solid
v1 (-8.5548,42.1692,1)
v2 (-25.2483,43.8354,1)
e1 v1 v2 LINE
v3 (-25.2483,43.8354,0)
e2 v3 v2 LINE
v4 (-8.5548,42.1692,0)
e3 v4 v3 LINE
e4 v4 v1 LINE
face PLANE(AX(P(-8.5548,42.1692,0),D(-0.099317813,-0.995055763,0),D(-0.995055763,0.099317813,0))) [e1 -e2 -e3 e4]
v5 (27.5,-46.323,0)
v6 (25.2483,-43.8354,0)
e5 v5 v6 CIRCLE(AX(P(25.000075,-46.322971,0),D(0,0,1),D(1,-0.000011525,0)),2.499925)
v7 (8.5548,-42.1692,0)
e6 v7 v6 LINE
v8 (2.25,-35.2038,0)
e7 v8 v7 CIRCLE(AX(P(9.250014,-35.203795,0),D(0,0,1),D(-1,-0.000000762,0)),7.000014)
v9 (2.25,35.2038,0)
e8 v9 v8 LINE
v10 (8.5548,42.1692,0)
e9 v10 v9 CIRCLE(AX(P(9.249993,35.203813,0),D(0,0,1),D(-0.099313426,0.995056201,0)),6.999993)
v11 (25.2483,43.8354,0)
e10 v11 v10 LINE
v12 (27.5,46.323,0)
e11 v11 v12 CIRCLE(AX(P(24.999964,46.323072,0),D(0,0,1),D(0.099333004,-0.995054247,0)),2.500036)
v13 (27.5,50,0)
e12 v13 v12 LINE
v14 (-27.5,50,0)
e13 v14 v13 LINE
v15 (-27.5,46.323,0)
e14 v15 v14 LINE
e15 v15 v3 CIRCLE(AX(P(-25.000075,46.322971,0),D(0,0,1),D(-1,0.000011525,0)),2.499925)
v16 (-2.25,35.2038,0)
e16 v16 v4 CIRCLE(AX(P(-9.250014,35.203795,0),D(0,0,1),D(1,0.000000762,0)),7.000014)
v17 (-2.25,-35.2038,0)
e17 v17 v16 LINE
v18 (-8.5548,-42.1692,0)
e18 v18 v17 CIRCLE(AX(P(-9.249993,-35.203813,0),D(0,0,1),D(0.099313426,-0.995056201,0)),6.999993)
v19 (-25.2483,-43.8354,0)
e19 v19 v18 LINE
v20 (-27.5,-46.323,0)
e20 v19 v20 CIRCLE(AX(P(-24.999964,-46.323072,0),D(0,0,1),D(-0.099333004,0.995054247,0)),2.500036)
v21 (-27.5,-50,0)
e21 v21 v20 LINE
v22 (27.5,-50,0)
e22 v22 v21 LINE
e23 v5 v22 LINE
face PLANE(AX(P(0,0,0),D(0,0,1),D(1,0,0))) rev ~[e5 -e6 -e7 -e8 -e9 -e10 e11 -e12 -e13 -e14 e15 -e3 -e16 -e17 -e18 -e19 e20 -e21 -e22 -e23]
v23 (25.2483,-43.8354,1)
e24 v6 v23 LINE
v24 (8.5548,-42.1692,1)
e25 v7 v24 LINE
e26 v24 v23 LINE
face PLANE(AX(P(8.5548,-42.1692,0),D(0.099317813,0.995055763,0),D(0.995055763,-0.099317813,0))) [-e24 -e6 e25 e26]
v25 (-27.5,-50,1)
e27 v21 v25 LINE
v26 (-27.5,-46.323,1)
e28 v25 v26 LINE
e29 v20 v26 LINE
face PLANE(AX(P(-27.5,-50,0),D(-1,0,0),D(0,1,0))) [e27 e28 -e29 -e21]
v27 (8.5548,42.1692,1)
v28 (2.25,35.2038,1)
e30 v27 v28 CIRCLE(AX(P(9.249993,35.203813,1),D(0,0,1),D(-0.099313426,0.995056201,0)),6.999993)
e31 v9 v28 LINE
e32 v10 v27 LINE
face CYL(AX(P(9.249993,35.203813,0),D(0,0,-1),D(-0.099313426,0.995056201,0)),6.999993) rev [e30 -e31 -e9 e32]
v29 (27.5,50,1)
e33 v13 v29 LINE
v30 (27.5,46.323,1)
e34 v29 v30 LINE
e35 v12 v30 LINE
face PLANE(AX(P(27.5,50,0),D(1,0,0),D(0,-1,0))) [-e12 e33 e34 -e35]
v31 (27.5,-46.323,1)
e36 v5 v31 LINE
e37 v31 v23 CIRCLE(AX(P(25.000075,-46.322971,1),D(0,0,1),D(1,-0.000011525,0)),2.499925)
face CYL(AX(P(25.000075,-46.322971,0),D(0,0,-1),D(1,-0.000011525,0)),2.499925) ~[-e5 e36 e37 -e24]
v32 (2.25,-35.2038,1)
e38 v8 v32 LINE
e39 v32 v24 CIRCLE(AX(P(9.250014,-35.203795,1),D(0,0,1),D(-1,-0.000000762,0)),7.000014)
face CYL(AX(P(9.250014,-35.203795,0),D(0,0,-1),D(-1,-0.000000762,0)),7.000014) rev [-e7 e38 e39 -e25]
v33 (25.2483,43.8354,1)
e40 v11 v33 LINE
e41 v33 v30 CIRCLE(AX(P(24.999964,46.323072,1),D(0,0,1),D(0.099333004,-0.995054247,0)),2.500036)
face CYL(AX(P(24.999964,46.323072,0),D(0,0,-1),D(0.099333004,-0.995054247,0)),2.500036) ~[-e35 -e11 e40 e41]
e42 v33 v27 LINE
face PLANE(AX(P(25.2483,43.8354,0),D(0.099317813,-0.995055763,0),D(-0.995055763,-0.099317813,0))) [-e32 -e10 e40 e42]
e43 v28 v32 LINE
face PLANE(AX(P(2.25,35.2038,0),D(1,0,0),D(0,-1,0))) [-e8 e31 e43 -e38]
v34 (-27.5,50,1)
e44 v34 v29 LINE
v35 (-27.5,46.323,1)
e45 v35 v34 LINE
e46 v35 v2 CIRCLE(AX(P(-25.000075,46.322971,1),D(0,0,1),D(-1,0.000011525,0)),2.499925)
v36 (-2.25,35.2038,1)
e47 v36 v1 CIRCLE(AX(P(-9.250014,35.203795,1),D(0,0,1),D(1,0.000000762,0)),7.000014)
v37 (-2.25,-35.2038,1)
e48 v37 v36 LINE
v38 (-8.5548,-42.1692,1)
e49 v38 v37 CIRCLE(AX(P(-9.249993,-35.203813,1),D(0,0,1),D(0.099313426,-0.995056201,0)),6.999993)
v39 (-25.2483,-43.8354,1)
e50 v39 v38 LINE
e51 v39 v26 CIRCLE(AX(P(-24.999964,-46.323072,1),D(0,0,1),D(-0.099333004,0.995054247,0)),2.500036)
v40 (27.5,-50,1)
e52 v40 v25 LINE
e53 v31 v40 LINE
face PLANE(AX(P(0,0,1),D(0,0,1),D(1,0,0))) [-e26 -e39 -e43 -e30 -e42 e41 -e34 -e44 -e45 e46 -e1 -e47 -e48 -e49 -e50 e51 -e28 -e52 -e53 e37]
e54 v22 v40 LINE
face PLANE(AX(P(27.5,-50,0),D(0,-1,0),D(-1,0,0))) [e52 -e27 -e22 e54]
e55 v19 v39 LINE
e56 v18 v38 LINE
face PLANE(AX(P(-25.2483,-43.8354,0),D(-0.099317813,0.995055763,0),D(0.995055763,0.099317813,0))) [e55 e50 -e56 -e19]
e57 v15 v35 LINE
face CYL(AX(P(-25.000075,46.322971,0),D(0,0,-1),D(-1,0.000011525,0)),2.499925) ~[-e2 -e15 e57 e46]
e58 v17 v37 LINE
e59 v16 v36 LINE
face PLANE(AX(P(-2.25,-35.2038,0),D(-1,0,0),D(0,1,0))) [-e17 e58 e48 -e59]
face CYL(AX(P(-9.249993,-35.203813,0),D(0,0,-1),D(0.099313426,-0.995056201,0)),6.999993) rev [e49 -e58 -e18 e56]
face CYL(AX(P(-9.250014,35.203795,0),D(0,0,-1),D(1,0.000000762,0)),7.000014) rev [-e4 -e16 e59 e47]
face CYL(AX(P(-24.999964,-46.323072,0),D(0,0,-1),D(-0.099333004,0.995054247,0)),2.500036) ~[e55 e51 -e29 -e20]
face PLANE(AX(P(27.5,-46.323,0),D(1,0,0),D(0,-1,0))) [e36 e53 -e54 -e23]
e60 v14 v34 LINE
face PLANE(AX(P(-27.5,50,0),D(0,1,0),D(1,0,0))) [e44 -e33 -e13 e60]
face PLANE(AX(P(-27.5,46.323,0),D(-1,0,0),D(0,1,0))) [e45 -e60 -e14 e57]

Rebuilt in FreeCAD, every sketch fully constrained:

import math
import FreeCAD as App
import Part
import Sketcher
from FreeCAD import Vector
Q = App.Units.Quantity

doc = App.newDocument("Part")
body = doc.addObject("PartDesign::Body", "Body")

sketch1 = body.newObject("Sketcher::SketchObject", "Sketch")
sketch1.AttachmentSupport = (doc.getObject("XY_Plane"), [""])
sketch1.MapMode = "FlatFace"
sketch1.addGeometry(Part.LineSegment(Vector(27.5, 50, 0), Vector(-27.5, 50, 0)), False)
sketch1.addGeometry(Part.LineSegment(Vector(-27.5, 50, 0), Vector(-27.5, 46.3, 0)), False)
sketch1.addGeometry(Part.ArcOfCircle(Part.Circle(Vector(-25, 46.3, 0), Vector(0, 0, 1), 2.5), math.radians(180), math.radians(264)), False)
sketch1.addGeometry(Part.LineSegment(Vector(-25.2, 43.8, 0), Vector(-8.6, 42.2, 0)), False)
sketch1.addGeometry(Part.ArcOfCircle(Part.Circle(Vector(-9.2, 35.2, 0), Vector(0, 0, 1), 7), math.radians(0), math.radians(84)), False)
sketch1.addGeometry(Part.LineSegment(Vector(-2.2, 35.2, 0), Vector(-2.2, -35.2, 0)), False)
sketch1.addGeometry(Part.ArcOfCircle(Part.Circle(Vector(-9.2, -35.2, 0), Vector(0, 0, 1), 7), math.radians(-84), math.radians(0)), False)
sketch1.addGeometry(Part.LineSegment(Vector(-8.6, -42.2, 0), Vector(-25.2, -43.8, 0)), False)
sketch1.addGeometry(Part.ArcOfCircle(Part.Circle(Vector(-25, -46.3, 0), Vector(0, 0, 1), 2.5), math.radians(96), math.radians(180)), False)
sketch1.addGeometry(Part.LineSegment(Vector(-27.5, -46.3, 0), Vector(-27.5, -50, 0)), False)
sketch1.addGeometry(Part.LineSegment(Vector(-27.5, -50, 0), Vector(27.5, -50, 0)), False)
sketch1.addGeometry(Part.LineSegment(Vector(27.5, -50, 0), Vector(27.5, -46.3, 0)), False)
sketch1.addGeometry(Part.ArcOfCircle(Part.Circle(Vector(25, -46.3, 0), Vector(0, 0, 1), 2.5), math.radians(0), math.radians(84)), False)
sketch1.addGeometry(Part.LineSegment(Vector(25.2, -43.8, 0), Vector(8.6, -42.2, 0)), False)
sketch1.addGeometry(Part.ArcOfCircle(Part.Circle(Vector(9.2, -35.2, 0), Vector(0, 0, 1), 7), math.radians(180), math.radians(264)), False)
sketch1.addGeometry(Part.LineSegment(Vector(2.2, -35.2, 0), Vector(2.2, 35.2, 0)), False)
sketch1.addGeometry(Part.ArcOfCircle(Part.Circle(Vector(9.2, 35.2, 0), Vector(0, 0, 1), 7), math.radians(96), math.radians(180)), False)
sketch1.addGeometry(Part.LineSegment(Vector(8.6, 42.2, 0), Vector(25.2, 43.8, 0)), False)
sketch1.addGeometry(Part.ArcOfCircle(Part.Circle(Vector(25, 46.3, 0), Vector(0, 0, 1), 2.5), math.radians(-84), math.radians(0)), False)
sketch1.addGeometry(Part.LineSegment(Vector(27.5, 46.3, 0), Vector(27.5, 50, 0)), False)
sketch1.addConstraint(Sketcher.Constraint("Coincident", 0, 2, 1, 1))
sketch1.addConstraint(Sketcher.Constraint("Tangent", 1, 2, 2, 1))
sketch1.addConstraint(Sketcher.Constraint("Tangent", 2, 2, 3, 1))
sketch1.addConstraint(Sketcher.Constraint("Tangent", 3, 2, 4, 2))
sketch1.addConstraint(Sketcher.Constraint("Tangent", 4, 1, 5, 1))
sketch1.addConstraint(Sketcher.Constraint("Tangent", 5, 2, 6, 2))
sketch1.addConstraint(Sketcher.Constraint("Tangent", 6, 1, 7, 1))
sketch1.addConstraint(Sketcher.Constraint("Tangent", 7, 2, 8, 1))
sketch1.addConstraint(Sketcher.Constraint("Tangent", 8, 2, 9, 1))
sketch1.addConstraint(Sketcher.Constraint("Coincident", 9, 2, 10, 1))
sketch1.addConstraint(Sketcher.Constraint("Coincident", 10, 2, 11, 1))
sketch1.addConstraint(Sketcher.Constraint("Tangent", 11, 2, 12, 1))
sketch1.addConstraint(Sketcher.Constraint("Tangent", 12, 2, 13, 1))
sketch1.addConstraint(Sketcher.Constraint("Tangent", 13, 2, 14, 2))
sketch1.addConstraint(Sketcher.Constraint("Tangent", 14, 1, 15, 1))
sketch1.addConstraint(Sketcher.Constraint("Tangent", 15, 2, 16, 2))
sketch1.addConstraint(Sketcher.Constraint("Tangent", 16, 1, 17, 1))
sketch1.addConstraint(Sketcher.Constraint("Tangent", 17, 2, 18, 1))
sketch1.addConstraint(Sketcher.Constraint("Tangent", 18, 2, 19, 1))
sketch1.addConstraint(Sketcher.Constraint("Coincident", 19, 2, 0, 1))
sketch1.addConstraint(Sketcher.Constraint("Horizontal", 0))
sketch1.addConstraint(Sketcher.Constraint("Vertical", 1))
sketch1.addConstraint(Sketcher.Constraint("Vertical", 5))
sketch1.addConstraint(Sketcher.Constraint("Vertical", 9))
sketch1.addConstraint(Sketcher.Constraint("Horizontal", 10))
sketch1.addConstraint(Sketcher.Constraint("Vertical", 11))
sketch1.addConstraint(Sketcher.Constraint("Vertical", 15))
sketch1.addConstraint(Sketcher.Constraint("Vertical", 19))
sketch1.addConstraint(Sketcher.Constraint("Equal", 4, 6))
sketch1.addConstraint(Sketcher.Constraint("Equal", 2, 8))
sketch1.addConstraint(Sketcher.Constraint("Equal", 8, 12))
sketch1.addConstraint(Sketcher.Constraint("Equal", 6, 14))
sketch1.addConstraint(Sketcher.Constraint("Equal", 14, 16))
sketch1.addConstraint(Sketcher.Constraint("Equal", 12, 18))
sketch1.addConstraint(Sketcher.Constraint("Symmetric", 2, 3, 12, 3, -1, 1))
sketch1.addConstraint(Sketcher.Constraint("Symmetric", 4, 3, 14, 3, -1, 1))
sketch1.addConstraint(Sketcher.Constraint("Symmetric", 8, 3, 18, 3, -1, 1))
sketch1.addConstraint(Sketcher.Constraint("Symmetric", 8, 3, 12, 3, -2))
sketch1.addConstraint(Sketcher.Constraint("Parallel", 7, 17))
sketch1.addConstraint(Sketcher.Constraint("Horizontal", 6, 3, 14, 3))
sketch1.addConstraint(Sketcher.Constraint("Equal", 1, 9))
sketch1.addConstraint(Sketcher.Constraint("Radius", 4, Q("7 mm")))
sketch1.addConstraint(Sketcher.Constraint("Radius", 2, Q("2.5 mm")))
sketch1.addConstraint(Sketcher.Constraint("DistanceX", 0, 2, 0, 1, Q("55 mm")))
sketch1.addConstraint(Sketcher.Constraint("Angle", 3, Q("-5.7 deg")))
sketch1.addConstraint(Sketcher.Constraint("DistanceX", 5, 2, 14, 1, Q("4.5 mm")))
sketch1.addConstraint(Sketcher.Constraint("DistanceY", -1, 1, 0, 2, Q("50 mm")))
sketch1.addConstraint(Sketcher.Constraint("DistanceY", 1, 2, 1, 1, Q("3.677 mm")))
pad1 = body.newObject("PartDesign::Pad", "Pad")
pad1.Profile = sketch1
pad1.Length = 1

doc.recompute()
